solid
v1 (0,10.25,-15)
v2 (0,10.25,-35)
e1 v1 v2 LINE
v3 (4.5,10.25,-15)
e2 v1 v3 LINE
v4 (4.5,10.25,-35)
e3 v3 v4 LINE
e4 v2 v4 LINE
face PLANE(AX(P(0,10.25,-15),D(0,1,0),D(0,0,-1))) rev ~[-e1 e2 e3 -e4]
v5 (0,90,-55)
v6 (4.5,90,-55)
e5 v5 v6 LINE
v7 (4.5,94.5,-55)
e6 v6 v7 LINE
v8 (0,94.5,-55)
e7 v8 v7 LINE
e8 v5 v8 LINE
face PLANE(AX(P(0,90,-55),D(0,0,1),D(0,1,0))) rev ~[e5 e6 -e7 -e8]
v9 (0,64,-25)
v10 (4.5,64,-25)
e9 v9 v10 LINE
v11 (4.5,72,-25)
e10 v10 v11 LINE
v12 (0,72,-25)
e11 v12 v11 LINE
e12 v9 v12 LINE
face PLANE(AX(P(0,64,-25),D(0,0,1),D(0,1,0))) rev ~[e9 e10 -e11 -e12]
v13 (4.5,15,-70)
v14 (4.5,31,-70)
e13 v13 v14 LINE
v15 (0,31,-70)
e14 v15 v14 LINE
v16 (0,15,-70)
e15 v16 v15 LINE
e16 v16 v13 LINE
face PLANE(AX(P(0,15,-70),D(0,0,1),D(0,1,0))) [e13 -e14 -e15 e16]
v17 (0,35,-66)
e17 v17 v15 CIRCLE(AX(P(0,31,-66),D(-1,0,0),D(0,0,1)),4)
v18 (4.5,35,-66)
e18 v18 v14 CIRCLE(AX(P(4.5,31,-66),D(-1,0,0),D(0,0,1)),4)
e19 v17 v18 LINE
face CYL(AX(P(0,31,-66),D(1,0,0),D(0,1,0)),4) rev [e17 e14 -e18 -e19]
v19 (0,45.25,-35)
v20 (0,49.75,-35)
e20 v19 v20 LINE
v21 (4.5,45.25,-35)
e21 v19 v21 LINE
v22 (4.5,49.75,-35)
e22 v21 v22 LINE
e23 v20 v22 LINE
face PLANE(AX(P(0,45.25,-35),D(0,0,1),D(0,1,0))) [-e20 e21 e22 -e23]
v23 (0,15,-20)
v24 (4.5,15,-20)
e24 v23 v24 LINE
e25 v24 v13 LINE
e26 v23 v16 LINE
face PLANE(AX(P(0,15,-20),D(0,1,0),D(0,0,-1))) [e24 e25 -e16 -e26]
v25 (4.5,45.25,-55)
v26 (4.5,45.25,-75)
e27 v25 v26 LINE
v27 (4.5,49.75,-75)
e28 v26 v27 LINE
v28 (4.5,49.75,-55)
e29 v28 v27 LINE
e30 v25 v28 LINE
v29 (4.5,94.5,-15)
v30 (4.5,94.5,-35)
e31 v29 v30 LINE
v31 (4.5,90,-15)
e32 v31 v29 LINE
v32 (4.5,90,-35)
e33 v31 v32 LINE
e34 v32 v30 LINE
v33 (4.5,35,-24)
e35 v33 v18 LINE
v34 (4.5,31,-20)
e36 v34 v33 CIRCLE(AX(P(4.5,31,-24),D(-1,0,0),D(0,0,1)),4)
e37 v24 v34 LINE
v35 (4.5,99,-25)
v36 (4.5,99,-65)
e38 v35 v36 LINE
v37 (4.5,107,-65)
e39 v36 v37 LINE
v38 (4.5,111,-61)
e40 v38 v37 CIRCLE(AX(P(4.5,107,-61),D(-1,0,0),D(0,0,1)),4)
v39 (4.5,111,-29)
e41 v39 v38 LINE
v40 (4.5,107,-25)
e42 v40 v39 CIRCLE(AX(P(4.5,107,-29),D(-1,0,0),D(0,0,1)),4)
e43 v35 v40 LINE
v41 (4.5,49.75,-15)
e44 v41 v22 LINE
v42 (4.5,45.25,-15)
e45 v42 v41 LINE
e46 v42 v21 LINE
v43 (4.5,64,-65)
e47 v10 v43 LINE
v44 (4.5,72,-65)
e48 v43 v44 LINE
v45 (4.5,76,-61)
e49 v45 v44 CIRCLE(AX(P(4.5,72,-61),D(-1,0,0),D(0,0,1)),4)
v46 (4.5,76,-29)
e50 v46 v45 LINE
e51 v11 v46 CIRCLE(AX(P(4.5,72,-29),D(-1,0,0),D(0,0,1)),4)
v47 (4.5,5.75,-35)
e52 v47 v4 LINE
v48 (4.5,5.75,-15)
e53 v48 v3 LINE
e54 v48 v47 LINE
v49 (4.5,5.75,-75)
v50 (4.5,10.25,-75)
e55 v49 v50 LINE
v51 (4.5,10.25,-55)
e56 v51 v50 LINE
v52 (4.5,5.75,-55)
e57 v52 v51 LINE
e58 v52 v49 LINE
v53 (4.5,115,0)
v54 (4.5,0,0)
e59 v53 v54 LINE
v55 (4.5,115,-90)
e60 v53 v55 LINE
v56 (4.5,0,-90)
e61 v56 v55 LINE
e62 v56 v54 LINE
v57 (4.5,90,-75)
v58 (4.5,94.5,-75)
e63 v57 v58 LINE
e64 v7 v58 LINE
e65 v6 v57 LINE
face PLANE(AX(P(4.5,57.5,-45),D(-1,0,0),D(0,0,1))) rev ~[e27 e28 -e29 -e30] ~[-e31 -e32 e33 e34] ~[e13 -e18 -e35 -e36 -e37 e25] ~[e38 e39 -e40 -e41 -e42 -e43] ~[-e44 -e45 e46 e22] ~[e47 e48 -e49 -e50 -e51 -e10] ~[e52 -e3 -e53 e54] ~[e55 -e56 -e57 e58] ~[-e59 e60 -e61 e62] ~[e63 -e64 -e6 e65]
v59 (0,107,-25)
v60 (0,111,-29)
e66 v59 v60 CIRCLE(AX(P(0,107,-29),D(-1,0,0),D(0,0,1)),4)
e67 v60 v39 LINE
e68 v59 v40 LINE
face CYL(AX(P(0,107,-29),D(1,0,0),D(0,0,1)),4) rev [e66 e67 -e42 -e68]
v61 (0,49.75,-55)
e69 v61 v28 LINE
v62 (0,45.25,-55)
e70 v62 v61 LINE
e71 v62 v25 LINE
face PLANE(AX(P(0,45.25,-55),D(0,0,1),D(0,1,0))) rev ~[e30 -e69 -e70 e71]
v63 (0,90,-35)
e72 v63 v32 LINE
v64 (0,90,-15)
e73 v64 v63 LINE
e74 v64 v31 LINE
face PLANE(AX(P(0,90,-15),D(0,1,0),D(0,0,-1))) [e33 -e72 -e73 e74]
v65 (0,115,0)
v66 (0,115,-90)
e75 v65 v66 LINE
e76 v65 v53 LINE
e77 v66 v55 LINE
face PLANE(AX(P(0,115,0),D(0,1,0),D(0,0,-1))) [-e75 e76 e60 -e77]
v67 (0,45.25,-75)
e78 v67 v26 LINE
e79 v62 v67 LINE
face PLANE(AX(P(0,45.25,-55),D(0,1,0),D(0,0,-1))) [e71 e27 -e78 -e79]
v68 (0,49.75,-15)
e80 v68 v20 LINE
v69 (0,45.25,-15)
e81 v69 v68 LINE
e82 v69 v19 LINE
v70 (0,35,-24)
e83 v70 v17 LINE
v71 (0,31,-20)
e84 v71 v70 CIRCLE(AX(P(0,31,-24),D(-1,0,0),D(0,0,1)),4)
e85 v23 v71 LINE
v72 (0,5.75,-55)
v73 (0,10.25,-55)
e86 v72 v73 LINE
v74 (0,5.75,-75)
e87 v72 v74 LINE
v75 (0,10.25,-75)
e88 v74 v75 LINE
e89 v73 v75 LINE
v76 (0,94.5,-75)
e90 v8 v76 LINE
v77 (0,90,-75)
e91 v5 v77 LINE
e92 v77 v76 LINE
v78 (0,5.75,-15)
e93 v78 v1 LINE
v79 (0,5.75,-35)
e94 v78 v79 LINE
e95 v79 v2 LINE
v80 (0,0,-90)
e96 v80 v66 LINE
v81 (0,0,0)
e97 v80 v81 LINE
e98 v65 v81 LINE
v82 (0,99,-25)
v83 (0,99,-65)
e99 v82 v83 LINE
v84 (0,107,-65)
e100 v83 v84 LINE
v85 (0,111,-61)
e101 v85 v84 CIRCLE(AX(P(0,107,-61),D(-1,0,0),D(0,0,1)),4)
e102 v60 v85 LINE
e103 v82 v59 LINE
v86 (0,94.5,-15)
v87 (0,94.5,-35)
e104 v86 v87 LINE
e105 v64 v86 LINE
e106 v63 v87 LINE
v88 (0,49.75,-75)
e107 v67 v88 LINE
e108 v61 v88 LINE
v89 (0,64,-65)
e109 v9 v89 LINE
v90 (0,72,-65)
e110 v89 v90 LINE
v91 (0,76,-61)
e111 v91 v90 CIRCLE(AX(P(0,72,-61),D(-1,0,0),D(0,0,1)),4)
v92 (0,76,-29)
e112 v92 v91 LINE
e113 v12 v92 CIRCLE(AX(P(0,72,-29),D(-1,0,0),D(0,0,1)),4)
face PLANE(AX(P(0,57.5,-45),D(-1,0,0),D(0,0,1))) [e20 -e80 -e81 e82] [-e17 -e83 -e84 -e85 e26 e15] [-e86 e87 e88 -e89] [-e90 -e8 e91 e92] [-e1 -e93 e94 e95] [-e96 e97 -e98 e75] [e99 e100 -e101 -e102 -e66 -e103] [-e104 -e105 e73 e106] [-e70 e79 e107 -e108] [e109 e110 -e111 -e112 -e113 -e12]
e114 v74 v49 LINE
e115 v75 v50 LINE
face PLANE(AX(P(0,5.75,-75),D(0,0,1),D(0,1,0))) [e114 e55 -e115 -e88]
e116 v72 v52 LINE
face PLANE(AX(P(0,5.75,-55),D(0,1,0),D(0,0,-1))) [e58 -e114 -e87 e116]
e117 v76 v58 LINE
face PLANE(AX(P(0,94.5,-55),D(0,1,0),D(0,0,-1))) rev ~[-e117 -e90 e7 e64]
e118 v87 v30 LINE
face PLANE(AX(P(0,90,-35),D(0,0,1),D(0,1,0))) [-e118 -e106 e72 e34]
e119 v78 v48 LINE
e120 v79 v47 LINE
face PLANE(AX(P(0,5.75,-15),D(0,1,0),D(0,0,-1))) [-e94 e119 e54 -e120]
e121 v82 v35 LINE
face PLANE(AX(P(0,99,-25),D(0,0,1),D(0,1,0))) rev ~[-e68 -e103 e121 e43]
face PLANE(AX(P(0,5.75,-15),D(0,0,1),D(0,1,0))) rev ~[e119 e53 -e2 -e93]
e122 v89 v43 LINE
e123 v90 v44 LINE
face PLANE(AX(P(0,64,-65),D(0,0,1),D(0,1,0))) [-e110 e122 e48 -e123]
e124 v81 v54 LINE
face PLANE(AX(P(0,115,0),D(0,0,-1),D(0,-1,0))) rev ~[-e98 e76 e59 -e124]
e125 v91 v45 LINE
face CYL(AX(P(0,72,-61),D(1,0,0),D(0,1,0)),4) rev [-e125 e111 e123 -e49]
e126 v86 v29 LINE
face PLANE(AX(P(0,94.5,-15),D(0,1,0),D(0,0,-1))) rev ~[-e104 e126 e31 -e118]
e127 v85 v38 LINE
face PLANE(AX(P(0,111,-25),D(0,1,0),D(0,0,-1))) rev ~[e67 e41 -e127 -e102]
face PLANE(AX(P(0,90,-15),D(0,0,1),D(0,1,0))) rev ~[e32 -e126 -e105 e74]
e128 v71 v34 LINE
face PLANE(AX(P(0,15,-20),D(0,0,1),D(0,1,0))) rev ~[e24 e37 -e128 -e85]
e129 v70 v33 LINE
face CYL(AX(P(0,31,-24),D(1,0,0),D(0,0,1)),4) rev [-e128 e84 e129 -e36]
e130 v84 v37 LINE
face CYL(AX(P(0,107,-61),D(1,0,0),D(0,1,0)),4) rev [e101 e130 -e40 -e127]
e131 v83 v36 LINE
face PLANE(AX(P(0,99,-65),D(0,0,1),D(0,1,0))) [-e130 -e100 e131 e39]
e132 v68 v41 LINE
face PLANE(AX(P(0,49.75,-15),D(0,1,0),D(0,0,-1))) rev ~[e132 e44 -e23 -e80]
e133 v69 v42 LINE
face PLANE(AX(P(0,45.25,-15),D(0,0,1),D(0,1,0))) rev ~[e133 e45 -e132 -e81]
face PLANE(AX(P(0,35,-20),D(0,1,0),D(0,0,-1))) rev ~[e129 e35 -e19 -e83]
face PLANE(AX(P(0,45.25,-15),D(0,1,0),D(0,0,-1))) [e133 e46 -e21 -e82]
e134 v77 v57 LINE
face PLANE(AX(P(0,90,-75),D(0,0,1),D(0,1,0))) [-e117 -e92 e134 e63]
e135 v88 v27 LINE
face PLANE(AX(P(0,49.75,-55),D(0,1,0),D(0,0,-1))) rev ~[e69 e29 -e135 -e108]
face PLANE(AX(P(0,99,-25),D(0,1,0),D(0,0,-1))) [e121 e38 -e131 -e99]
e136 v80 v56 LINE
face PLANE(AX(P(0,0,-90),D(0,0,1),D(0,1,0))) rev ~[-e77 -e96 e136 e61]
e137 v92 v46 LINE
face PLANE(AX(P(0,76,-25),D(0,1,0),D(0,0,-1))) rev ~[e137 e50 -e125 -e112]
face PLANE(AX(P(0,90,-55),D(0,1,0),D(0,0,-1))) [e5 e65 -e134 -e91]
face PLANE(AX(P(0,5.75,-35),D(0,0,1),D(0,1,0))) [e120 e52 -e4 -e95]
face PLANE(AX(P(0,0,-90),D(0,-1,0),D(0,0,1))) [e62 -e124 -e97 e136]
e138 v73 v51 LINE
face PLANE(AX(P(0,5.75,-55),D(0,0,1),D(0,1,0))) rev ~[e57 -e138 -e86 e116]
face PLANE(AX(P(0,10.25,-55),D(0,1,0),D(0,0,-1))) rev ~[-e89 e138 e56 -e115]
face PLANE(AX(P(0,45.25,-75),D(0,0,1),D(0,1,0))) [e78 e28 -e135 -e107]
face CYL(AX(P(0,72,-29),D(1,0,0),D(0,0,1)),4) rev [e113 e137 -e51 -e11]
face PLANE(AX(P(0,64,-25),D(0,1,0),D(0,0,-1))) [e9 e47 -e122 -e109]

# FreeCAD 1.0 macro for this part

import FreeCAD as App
import Part
import Sketcher
from FreeCAD import Vector
Q = App.Units.Quantity


def edges_at(feature, points):
    """Names of the edges that pass closest to the given points."""
    edges = feature.Shape.Edges
    near = lambda p: min(range(len(edges)), key=lambda i: edges[i].distToShape(Part.Vertex(*p))[0])
    return sorted({f"Edge{near(p) + 1}" for p in points})


def add_polygon(sketch, points):
    """Adds a closed chain of lines whose ends are joined by coincident constraints."""
    first, n = sketch.GeometryCount, len(points)
    for a, b in zip(points, points[1:] + points[:1]):
        sketch.addGeometry(Part.LineSegment(App.Vector(*a, 0), App.Vector(*b, 0)), False)
    for i in range(n):
        sketch.addConstraint(Sketcher.Constraint("Coincident", first + i, 2, first + (i + 1) % n, 1))

doc = App.newDocument("Part")
body = doc.addObject("PartDesign::Body", "Body")

# Sketch on YZ plane
sketch1 = doc.addObject("Sketcher::SketchObject", "Sketch")
body.addObject(sketch1)
sketch1.AttachmentSupport = (doc.YZ_Plane, [""])
sketch1.MapMode = "FlatFace"
add_polygon(sketch1, [(115, 0), (0, 0), (0, -90), (115, -90)])  # lines 0-3
add_polygon(sketch1, [(5.8, -55), (10.2, -55), (10.2, -75), (5.8, -75)])  # lines 4-7
add_polygon(sketch1, [(45.2, -55), (49.8, -55), (49.8, -75), (45.2, -75)])  # lines 8-11
add_polygon(sketch1, [(15, -20), (35, -20), (35, -70), (15, -70)])  # lines 12-15
add_polygon(sketch1, [(5.8, -15), (10.2, -15), (10.2, -35), (5.8, -35)])  # lines 16-19
add_polygon(sketch1, [(45.2, -15), (49.8, -15), (49.8, -35), (45.2, -35)])  # lines 20-23
add_polygon(sketch1, [(90, -55), (94.5, -55), (94.5, -75), (90, -75)])  # lines 24-27
add_polygon(sketch1, [(64, -25), (76, -25), (76, -65), (64, -65)])  # lines 28-31
add_polygon(sketch1, [(99, -25), (111, -25), (111, -65), (99, -65)])  # lines 32-35
add_polygon(sketch1, [(90, -15), (94.5, -15), (94.5, -35), (90, -35)])  # lines 36-39
sketch1.addConstraint([
    Sketcher.Constraint("Horizontal", 0),
    Sketcher.Constraint("Vertical", 1),
    Sketcher.Constraint("Horizontal", 2),
    Sketcher.Constraint("Vertical", 3),
    Sketcher.Constraint("Horizontal", 4),
    Sketcher.Constraint("Vertical", 5),
    Sketcher.Constraint("Horizontal", 6),
    Sketcher.Constraint("Vertical", 7),
    Sketcher.Constraint("Horizontal", 8),
    Sketcher.Constraint("Vertical", 9),
    Sketcher.Constraint("Horizontal", 10),
    Sketcher.Constraint("Vertical", 11),
    Sketcher.Constraint("Horizontal", 12),
    Sketcher.Constraint("Vertical", 13),
    Sketcher.Constraint("Horizontal", 14),
    Sketcher.Constraint("Vertical", 15),
    Sketcher.Constraint("Horizontal", 16),
    Sketcher.Constraint("Vertical", 17),
    Sketcher.Constraint("Horizontal", 18),
    Sketcher.Constraint("Vertical", 19),
    Sketcher.Constraint("Horizontal", 20),
    Sketcher.Constraint("Vertical", 21),
    Sketcher.Constraint("Horizontal", 22),
    Sketcher.Constraint("Vertical", 23),
    Sketcher.Constraint("Horizontal", 24),
    Sketcher.Constraint("Vertical", 25),
    Sketcher.Constraint("Horizontal", 26),
    Sketcher.Constraint("Vertical", 27),
    Sketcher.Constraint("Horizontal", 28),
    Sketcher.Constraint("Vertical", 29),
    Sketcher.Constraint("Horizontal", 30),
    Sketcher.Constraint("Vertical", 31),
    Sketcher.Constraint("Horizontal", 32),
    Sketcher.Constraint("Vertical", 33),
    Sketcher.Constraint("Horizontal", 34),
    Sketcher.Constraint("Vertical", 35),
    Sketcher.Constraint("Horizontal", 36),
    Sketcher.Constraint("Vertical", 37),
    Sketcher.Constraint("Horizontal", 38),
    Sketcher.Constraint("Vertical", 39),
    Sketcher.Constraint("Coincident", 0, 2, -1, 1),
    Sketcher.Constraint("Horizontal", 7, 2, 8, 2),
    Sketcher.Constraint("Horizontal", 6, 2, 9, 2),
    Sketcher.Constraint("Horizontal", 19, 2, 20, 2),
    Sketcher.Constraint("Horizontal", 18, 2, 21, 2),
    Sketcher.Constraint("Horizontal", 11, 2, 24, 2),
    Sketcher.Constraint("Horizontal", 10, 2, 25, 2),
    Sketcher.Constraint("Horizontal", 31, 2, 32, 2),
    Sketcher.Constraint("Horizontal", 30, 2, 33, 2),
    Sketcher.Constraint("Horizontal", 23, 2, 36, 2),
    Sketcher.Constraint("Horizontal", 22, 2, 37, 2),
    Sketcher.Constraint("Vertical", 5, 2, 16, 2),
    Sketcher.Constraint("Vertical", 7, 2, 18, 2),
    Sketcher.Constraint("Vertical", 9, 2, 20, 2),
    Sketcher.Constraint("Vertical", 11, 2, 22, 2),
    Sketcher.Constraint("Vertical", 25, 2, 36, 2),
    Sketcher.Constraint("Vertical", 27, 2, 38, 2),
    Sketcher.Constraint("Equal", 6, 8),
    Sketcher.Constraint("Equal", 22, 24),
    Sketcher.Constraint("Equal", 30, 32),
    Sketcher.Constraint("Equal", 14, 5),
    Sketcher.Constraint("Equal", 11, 17),
    Sketcher.Constraint("DistanceX", 0, 2, 0, 1, Q("115 mm")),
    Sketcher.Constraint("DistanceX", 12, 1, 12, 2, Q("20 mm")),
    Sketcher.Constraint("DistanceX", 28, 1, 28, 2, Q("12 mm")),
    Sketcher.Constraint("DistanceY", 1, 2, 1, 1, Q("90 mm")),
    Sketcher.Constraint("DistanceY", 13, 2, 13, 1, Q("50 mm")),
    Sketcher.Constraint("DistanceY", 29, 2, 29, 1, Q("40 mm")),
    Sketcher.Constraint("DistanceX", 4, 1, 4, 2, Q("4.5 mm")),
    Sketcher.Constraint("DistanceY", 4, 2, -1, 1, Q("55 mm")),
    Sketcher.Constraint("DistanceX", -1, 1, 12, 2, Q("35 mm")),
    Sketcher.Constraint("DistanceY", 12, 2, -1, 1, Q("20 mm")),
    Sketcher.Constraint("DistanceY", 16, 2, -1, 1, Q("15 mm")),
    Sketcher.Constraint("DistanceX", -1, 1, 26, 2, Q("90 mm")),
    Sketcher.Constraint("DistanceX", -1, 1, 28, 2, Q("76 mm")),
    Sketcher.Constraint("DistanceY", 28, 2, -1, 1, Q("25 mm")),
    Sketcher.Constraint("DistanceX", -1, 1, 32, 2, Q("111 mm")),
    Sketcher.Constraint("DistanceX", 7, 2, 8, 2, Q("44 mm")),
    Sketcher.Constraint("DistanceX", -1, 1, 4, 2, Q("10.25 mm")),
])
pad1 = doc.addObject("PartDesign::Pad", "Pad")
body.addObject(pad1)
pad1.Profile = sketch1
pad1.Length = 4.5
doc.recompute()

fillet = doc.addObject("PartDesign::Fillet", "Fillet")
body.addObject(fillet)
fillet.Base = (pad1, edges_at(pad1, [
    (2.25, 76, -65),
    (2.25, 76, -25),
    (2.25, 35, -70),
    (2.25, 35, -20),
    (2.25, 111, -65),
    (2.25, 111, -25),
]))
fillet.Radius = 4

doc.recompute()
